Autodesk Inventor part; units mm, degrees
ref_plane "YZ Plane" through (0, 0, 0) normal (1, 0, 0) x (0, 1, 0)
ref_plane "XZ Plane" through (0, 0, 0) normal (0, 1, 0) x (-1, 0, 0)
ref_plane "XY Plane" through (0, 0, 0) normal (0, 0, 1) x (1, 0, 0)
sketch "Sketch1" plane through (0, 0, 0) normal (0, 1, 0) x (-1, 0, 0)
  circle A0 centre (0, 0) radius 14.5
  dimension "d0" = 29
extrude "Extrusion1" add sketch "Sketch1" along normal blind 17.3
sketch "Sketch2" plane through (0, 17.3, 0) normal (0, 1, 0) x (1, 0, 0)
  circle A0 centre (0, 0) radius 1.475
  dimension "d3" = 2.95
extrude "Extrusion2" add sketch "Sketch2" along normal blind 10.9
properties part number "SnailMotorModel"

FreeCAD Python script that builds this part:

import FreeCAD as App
import Part
import Sketcher
from FreeCAD import Vector
Q = App.Units.Quantity

doc = App.newDocument("Part")
body = doc.addObject("PartDesign::Body", "Body")

# Sketch on XZ plane
sketch1 = body.newObject("Sketcher::SketchObject", "Sketch")
sketch1.AttachmentSupport = (doc.getObject("XZ_Plane"), [""])
sketch1.MapMode = "FlatFace"
sketch1.addGeometry(Part.Circle(Vector(0, 0, 0), Vector(0, 0, 1), 14.5), False)
sketch1.addConstraint([
    Sketcher.Constraint("Coincident", 0, 3, -1, 1),
    Sketcher.Constraint("Diameter", 0, Q("29 mm")),
])
pad1 = body.newObject("PartDesign::Pad", "Pad")
pad1.Profile = sketch1
pad1.Length = 17.3
pad1.Reversed = True

# Sketch on XZ plane
sketch2 = body.newObject("Sketcher::SketchObject", "Sketch001")
sketch2.AttachmentSupport = (doc.getObject("XZ_Plane"), [""])
sketch2.MapMode = "FlatFace"
sketch2.AttachmentOffset = App.Placement(Vector(0, 0, -17.3), App.Rotation())
sketch2.addGeometry(Part.Circle(Vector(0, 0, 0), Vector(0, 0, 1), 1.475), False)
sketch2.addConstraint([
    Sketcher.Constraint("Coincident", 0, 3, -1, 1),
    Sketcher.Constraint("Diameter", 0, Q("2.95 mm")),
])
pad2 = body.newObject("PartDesign::Pad", "Pad001")
pad2.Profile = sketch2
pad2.Length = 10.9
pad2.Reversed = True

doc.recompute()
